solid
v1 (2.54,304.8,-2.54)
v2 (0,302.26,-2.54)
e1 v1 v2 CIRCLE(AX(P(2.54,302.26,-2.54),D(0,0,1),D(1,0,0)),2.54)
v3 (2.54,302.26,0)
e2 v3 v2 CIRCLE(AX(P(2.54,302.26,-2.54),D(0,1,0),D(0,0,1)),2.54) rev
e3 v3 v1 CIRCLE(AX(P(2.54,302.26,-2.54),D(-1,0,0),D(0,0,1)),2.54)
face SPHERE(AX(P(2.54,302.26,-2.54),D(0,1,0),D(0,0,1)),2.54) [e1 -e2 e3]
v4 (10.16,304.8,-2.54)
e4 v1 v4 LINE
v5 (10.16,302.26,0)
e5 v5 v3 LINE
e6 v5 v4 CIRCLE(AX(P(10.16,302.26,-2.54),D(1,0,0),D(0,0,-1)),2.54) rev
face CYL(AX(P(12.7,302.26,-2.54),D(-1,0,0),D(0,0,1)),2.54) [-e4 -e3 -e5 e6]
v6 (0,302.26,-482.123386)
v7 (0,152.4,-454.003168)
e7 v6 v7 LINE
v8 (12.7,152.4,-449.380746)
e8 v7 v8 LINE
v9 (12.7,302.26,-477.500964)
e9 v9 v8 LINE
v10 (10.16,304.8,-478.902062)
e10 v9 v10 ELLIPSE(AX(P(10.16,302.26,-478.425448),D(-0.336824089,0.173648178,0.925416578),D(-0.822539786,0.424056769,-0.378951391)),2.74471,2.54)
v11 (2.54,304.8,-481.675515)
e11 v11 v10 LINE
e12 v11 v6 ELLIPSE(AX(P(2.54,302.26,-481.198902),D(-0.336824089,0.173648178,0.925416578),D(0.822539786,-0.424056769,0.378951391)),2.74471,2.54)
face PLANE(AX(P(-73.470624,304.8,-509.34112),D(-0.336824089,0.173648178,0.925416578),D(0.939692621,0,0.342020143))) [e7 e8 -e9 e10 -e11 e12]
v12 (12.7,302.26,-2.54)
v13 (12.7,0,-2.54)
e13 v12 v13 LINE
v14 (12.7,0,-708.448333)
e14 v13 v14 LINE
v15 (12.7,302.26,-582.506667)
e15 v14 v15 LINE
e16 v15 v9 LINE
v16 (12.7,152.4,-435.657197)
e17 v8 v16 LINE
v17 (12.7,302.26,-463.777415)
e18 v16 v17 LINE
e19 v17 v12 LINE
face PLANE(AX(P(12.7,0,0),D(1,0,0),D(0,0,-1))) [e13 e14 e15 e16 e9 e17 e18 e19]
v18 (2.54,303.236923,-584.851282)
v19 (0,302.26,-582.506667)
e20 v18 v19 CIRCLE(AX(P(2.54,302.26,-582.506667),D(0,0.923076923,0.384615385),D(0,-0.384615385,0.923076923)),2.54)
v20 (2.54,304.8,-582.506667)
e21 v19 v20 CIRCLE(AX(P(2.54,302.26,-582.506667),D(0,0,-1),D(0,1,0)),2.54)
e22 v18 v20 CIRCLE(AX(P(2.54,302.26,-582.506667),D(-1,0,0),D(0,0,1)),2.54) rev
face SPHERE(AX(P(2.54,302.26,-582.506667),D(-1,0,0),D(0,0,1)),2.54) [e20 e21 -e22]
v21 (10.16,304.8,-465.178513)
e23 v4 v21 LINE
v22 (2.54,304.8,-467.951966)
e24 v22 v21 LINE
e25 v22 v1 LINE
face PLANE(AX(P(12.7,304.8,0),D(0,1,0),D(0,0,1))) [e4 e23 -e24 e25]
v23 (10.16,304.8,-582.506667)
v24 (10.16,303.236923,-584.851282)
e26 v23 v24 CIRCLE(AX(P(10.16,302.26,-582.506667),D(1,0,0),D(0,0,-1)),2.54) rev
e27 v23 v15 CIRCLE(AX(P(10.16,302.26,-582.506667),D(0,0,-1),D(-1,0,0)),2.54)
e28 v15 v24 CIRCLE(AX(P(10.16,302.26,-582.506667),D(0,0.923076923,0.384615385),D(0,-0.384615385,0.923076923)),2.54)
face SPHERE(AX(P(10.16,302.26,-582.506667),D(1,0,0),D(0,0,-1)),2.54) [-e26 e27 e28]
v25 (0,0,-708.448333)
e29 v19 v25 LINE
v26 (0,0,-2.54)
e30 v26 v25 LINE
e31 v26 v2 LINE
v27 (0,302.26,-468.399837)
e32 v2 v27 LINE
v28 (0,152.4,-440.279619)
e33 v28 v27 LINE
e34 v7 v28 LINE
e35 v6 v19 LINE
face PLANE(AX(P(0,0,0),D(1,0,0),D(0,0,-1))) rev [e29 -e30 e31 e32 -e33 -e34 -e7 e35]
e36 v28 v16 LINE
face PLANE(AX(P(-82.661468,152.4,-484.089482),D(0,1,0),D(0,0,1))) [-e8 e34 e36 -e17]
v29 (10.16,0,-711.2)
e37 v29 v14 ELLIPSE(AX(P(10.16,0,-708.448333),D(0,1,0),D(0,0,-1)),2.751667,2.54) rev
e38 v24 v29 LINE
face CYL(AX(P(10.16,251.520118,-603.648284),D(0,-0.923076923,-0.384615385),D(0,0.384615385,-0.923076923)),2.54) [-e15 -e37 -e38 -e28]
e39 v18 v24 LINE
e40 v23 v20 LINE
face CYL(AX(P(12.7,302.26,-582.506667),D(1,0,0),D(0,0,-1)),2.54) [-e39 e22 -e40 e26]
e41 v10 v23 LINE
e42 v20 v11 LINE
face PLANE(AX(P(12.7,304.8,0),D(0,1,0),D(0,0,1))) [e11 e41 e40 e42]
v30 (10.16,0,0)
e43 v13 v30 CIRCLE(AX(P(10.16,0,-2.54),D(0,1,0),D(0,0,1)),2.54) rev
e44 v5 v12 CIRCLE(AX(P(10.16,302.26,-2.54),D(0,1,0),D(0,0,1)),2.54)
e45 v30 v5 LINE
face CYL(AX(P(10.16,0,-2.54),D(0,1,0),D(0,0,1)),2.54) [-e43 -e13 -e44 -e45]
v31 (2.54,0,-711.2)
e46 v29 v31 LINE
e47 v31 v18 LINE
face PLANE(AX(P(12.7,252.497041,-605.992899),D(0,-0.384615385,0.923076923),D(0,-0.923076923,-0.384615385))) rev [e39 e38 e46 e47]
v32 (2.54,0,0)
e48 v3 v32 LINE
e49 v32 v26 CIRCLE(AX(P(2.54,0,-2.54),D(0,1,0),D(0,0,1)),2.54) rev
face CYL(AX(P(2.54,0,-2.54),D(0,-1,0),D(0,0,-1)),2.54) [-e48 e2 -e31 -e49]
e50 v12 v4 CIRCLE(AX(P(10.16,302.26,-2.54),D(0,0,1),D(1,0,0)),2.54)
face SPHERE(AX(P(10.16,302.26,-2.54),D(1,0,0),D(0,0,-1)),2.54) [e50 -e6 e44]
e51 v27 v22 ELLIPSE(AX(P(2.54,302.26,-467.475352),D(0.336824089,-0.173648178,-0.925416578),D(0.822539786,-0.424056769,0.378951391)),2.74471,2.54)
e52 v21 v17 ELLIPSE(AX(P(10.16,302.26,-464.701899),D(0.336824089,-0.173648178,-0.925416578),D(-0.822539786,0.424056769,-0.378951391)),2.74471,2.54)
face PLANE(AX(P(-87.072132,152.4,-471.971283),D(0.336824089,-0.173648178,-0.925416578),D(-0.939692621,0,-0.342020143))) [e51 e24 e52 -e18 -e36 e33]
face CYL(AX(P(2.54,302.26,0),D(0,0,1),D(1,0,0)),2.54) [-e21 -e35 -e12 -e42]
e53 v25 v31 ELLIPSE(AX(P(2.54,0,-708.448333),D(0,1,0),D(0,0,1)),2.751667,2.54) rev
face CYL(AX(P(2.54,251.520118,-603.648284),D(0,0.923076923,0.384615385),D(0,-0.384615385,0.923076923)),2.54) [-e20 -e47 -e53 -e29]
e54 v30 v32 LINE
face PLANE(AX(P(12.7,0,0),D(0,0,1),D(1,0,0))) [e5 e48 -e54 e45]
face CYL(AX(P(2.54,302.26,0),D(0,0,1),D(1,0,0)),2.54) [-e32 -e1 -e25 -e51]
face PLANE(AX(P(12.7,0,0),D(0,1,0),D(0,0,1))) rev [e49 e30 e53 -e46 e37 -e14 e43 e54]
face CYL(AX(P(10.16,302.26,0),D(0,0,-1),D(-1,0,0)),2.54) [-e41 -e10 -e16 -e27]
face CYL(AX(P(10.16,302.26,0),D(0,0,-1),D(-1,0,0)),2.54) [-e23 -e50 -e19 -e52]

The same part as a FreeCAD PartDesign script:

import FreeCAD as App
import Part
import Sketcher
from FreeCAD import Vector
Q = App.Units.Quantity


def edges_at(feature, points):
    """Names of the edges that pass closest to the given points."""
    edges = feature.Shape.Edges
    near = lambda p: min(range(len(edges)), key=lambda i: edges[i].distToShape(Part.Vertex(*p))[0])
    return sorted({f"Edge{near(p) + 1}" for p in points})

doc = App.newDocument("Part")
body = doc.addObject("PartDesign::Body", "Body")

sketch1 = body.newObject("Sketcher::SketchObject", "Sketch")
sketch1.AttachmentSupport = (doc.getObject("YZ_Plane"), [""])
sketch1.MapMode = "FlatFace"
sketch1.addGeometry(Part.LineSegment(Vector(305, -584, 0), Vector(305, 0, 0)), False)
sketch1.addGeometry(Part.LineSegment(Vector(305, 0, 0), Vector(0, 0, 0)), False)
sketch1.addGeometry(Part.LineSegment(Vector(0, 0, 0), Vector(0, -711, 0)), False)
sketch1.addGeometry(Part.LineSegment(Vector(0, -711, 0), Vector(305, -584, 0)), False)
sketch1.addConstraint(Sketcher.Constraint("Coincident", 0, 2, 1, 1))
sketch1.addConstraint(Sketcher.Constraint("Coincident", 1, 2, 2, 1))
sketch1.addConstraint(Sketcher.Constraint("Coincident", 2, 2, 3, 1))
sketch1.addConstraint(Sketcher.Constraint("Coincident", 3, 2, 0, 1))
sketch1.addConstraint(Sketcher.Constraint("Vertical", 0))
sketch1.addConstraint(Sketcher.Constraint("Horizontal", 1))
sketch1.addConstraint(Sketcher.Constraint("Vertical", 2))
sketch1.addConstraint(Sketcher.Constraint("Coincident", 1, 2, -1, 1))
sketch1.addConstraint(Sketcher.Constraint("DistanceX", 1, 2, 1, 1, Q("12 in")))
sketch1.addConstraint(Sketcher.Constraint("DistanceY", 0, 1, 0, 2, Q("23 in")))
sketch1.addConstraint(Sketcher.Constraint("DistanceY", 2, 2, 2, 1, Q("28 in")))
pad1 = body.newObject("PartDesign::Pad", "Pad")
pad1.Profile = sketch1
pad1.Length = Q("0.5 in")

sketch2 = body.newObject("Sketcher::SketchObject", "Sketch001")
sketch2.Placement = App.Placement(Vector(11.214382, 0, 4.081701), App.Rotation(Vector(0, 1, 0), Vector(-0.342020143, 0, 0.939692621), Vector(0.939692621, 0, 0.342020143), "ZXY"))
sketch2.addGeometry(Part.LineSegment(Vector(152, -427, 0), Vector(305, -453, 0)), False)
sketch2.addGeometry(Part.LineSegment(Vector(305, -453, 0), Vector(305, -441, 0)), False)
sketch2.addGeometry(Part.LineSegment(Vector(305, -441, 0), Vector(152, -414, 0)), False)
sketch2.addGeometry(Part.LineSegment(Vector(152, -414, 0), Vector(152, -427, 0)), False)
sketch2.addConstraint(Sketcher.Constraint("Coincident", 0, 2, 1, 1))
sketch2.addConstraint(Sketcher.Constraint("Coincident", 1, 2, 2, 1))
sketch2.addConstraint(Sketcher.Constraint("Coincident", 2, 2, 3, 1))
sketch2.addConstraint(Sketcher.Constraint("Coincident", 3, 2, 0, 1))
sketch2.addConstraint(Sketcher.Constraint("Vertical", 1))
sketch2.addConstraint(Sketcher.Constraint("Vertical", 3))
sketch2.addConstraint(Sketcher.Constraint("Parallel", 0, 2))
sketch2.addConstraint(Sketcher.Constraint("DistanceX", -1, 1, 0, 2, Q("12 in")))
sketch2.addConstraint(Sketcher.Constraint("DistanceX", -1, 1, 2, 2, Q("6 in")))
sketch2.addConstraint(Sketcher.Constraint("Angle", 0, Q("-10 deg")))
sketch2.addConstraint(Sketcher.Constraint("DistanceY", 1, 1, 1, 2, Q("12.895918 mm")))
sketch2.addConstraint(Sketcher.Constraint("DistanceY", 0, 2, -1, 1, Q("453.495659 mm")))
pocket1 = body.newObject("PartDesign::Pocket", "Pocket")
pocket1.Profile = sketch2
pocket1.Type = "ThroughAll"
doc.recompute()

fillet = body.newObject("PartDesign::Fillet", "Fillet")
fillet.Base = (pocket1, edges_at(pocket1, [
    (0, 304.8, -234.438),
    (0, 152.4, -647.7),
    (0, 152.4, 0),
    (12.7, 304.8, -232.127),
    (6.35, 304.8, -584.2),
    (6.35, 304.8, 0),
    (12.7, 152.4, 0),
    (12.7, 152.4, -647.7),
    (12.7, 304.8, -531.089),
    (0, 304.8, -533.4),
]))
fillet.Radius = Q("0.1 in")

doc.recompute()
